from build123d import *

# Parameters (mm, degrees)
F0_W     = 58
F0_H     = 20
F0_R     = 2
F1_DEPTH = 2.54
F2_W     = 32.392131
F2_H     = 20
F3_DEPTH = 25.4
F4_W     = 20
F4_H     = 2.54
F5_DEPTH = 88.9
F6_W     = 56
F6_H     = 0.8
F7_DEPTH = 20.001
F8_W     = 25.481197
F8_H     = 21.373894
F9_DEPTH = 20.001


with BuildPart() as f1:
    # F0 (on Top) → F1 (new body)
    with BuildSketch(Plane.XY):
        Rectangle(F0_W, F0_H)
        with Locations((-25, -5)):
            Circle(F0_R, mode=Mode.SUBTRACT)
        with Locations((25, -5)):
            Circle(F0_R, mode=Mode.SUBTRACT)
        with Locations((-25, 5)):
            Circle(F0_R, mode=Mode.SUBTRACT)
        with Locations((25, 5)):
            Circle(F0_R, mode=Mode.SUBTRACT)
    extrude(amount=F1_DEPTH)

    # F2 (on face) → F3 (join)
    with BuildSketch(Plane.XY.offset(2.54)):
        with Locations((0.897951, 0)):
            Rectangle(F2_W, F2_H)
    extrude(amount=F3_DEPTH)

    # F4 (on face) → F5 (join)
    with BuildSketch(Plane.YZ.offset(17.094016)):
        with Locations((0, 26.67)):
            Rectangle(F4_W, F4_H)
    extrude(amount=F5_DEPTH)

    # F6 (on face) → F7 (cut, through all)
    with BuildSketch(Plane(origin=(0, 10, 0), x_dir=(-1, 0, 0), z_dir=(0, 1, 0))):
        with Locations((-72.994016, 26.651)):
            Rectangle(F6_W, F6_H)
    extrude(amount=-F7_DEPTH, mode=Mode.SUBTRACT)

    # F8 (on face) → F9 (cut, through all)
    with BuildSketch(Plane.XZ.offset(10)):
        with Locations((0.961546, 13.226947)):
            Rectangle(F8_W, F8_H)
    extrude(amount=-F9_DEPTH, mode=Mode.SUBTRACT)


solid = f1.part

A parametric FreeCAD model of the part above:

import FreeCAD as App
import Part
import Sketcher
from FreeCAD import Vector


def add_polygon(sketch, points):
    """Adds a closed chain of lines whose ends are joined by coincident constraints."""
    first, n = sketch.GeometryCount, len(points)
    for a, b in zip(points, points[1:] + points[:1]):
        sketch.addGeometry(Part.LineSegment(App.Vector(*a, 0), App.Vector(*b, 0)), False)
    for i in range(n):
        sketch.addConstraint(Sketcher.Constraint("Coincident", first + i, 2, first + (i + 1) % n, 1))

doc = App.newDocument("Part")
body = doc.addObject("PartDesign::Body", "Body")

# Sketch on XY plane
sketch1 = doc.addObject("Sketcher::SketchObject", "Sketch")
body.addObject(sketch1)
sketch1.AttachmentSupport = (doc.XY_Plane, [""])
sketch1.MapMode = "FlatFace"
add_polygon(sketch1, [(-29, 10), (-29, -10), (29, -10), (29, 10)])  # lines 0-3
sketch1.addGeometry(Part.Circle(Vector(-25, -5, 0), Vector(0, 0, 1), 2), False)  # 4
sketch1.addGeometry(Part.Circle(Vector(25, -5, 0), Vector(0, 0, 1), 2), False)  # 5
sketch1.addGeometry(Part.Circle(Vector(-25, 5, 0), Vector(0, 0, 1), 2), False)  # 6
sketch1.addGeometry(Part.Circle(Vector(25, 5, 0), Vector(0, 0, 1), 2), False)  # 7
sketch1.addConstraint(Sketcher.Constraint("Vertical", 0))
sketch1.addConstraint(Sketcher.Constraint("Horizontal", 1))
sketch1.addConstraint(Sketcher.Constraint("Vertical", 2))
sketch1.addConstraint(Sketcher.Constraint("Horizontal", 3))
sketch1.addConstraint(Sketcher.Constraint("Equal", 4, 5))
sketch1.addConstraint(Sketcher.Constraint("Equal", 5, 6))
sketch1.addConstraint(Sketcher.Constraint("Equal", 6, 7))
sketch1.addConstraint(Sketcher.Constraint("Symmetric", 5, 3, 6, 3, -1, 1))
sketch1.addConstraint(Sketcher.Constraint("Symmetric", 4, 3, 7, 3, -1, 1))
sketch1.addConstraint(Sketcher.Constraint("Symmetric", 0, 2, 2, 2, -1, 1))
sketch1.addConstraint(Sketcher.Constraint("Symmetric", 4, 3, 5, 3, -2))
sketch1.addConstraint(Sketcher.Constraint("Diameter", 4, 4.0))
sketch1.addConstraint(Sketcher.Constraint("DistanceX", 1, 1, 1, 2, 58.0))
sketch1.addConstraint(Sketcher.Constraint("DistanceY", 0, 2, 0, 1, 20.0))
sketch1.addConstraint(Sketcher.Constraint("DistanceX", 4, 3, -1, 1, 25.0))
sketch1.addConstraint(Sketcher.Constraint("DistanceY", 4, 3, -1, 1, 5.0))
pad1 = doc.addObject("PartDesign::Pad", "Pad")
body.addObject(pad1)
pad1.Profile = sketch1
pad1.Length = 2.54

# Sketch on XY plane
sketch2 = doc.addObject("Sketcher::SketchObject", "Sketch001")
body.addObject(sketch2)
sketch2.AttachmentSupport = (doc.XY_Plane, [""])
sketch2.MapMode = "FlatFace"
sketch2.AttachmentOffset = App.Placement(Vector(0, 0, 2.54), App.Rotation())
add_polygon(sketch2, [(-15, 10), (-15, -10), (17, -10), (17, 10)])  # lines 0-3
sketch2.addConstraint(Sketcher.Constraint("Vertical", 0))
sketch2.addConstraint(Sketcher.Constraint("Horizontal", 1))
sketch2.addConstraint(Sketcher.Constraint("Vertical", 2))
sketch2.addConstraint(Sketcher.Constraint("Horizontal", 3))
sketch2.addConstraint(Sketcher.Constraint("DistanceY", 0, 2, 0, 1, 20.0))
sketch2.addConstraint(Sketcher.Constraint("DistanceY", 0, 2, -1, 1, 10.0))
sketch2.addConstraint(Sketcher.Constraint("DistanceX", 1, 1, 1, 2, 32.392131))
sketch2.addConstraint(Sketcher.Constraint("DistanceX", 0, 2, -1, 1, 15.298115))
pad2 = doc.addObject("PartDesign::Pad", "Pad001")
body.addObject(pad2)
pad2.Profile = sketch2
pad2.Length = 25.4

# Sketch on YZ plane
sketch3 = doc.addObject("Sketcher::SketchObject", "Sketch002")
body.addObject(sketch3)
sketch3.AttachmentSupport = (doc.YZ_Plane, [""])
sketch3.MapMode = "FlatFace"
sketch3.AttachmentOffset = App.Placement(Vector(0, 0, 17.094016), App.Rotation())
add_polygon(sketch3, [(-10, 27.9), (-10, 25.4), (10, 25.4), (10, 27.9)])  # lines 0-3
sketch3.addConstraint(Sketcher.Constraint("Vertical", 0))
sketch3.addConstraint(Sketcher.Constraint("Horizontal", 1))
sketch3.addConstraint(Sketcher.Constraint("Vertical", 2))
sketch3.addConstraint(Sketcher.Constraint("Horizontal", 3))
sketch3.addConstraint(Sketcher.Constraint("DistanceX", 1, 1, 1, 2, 20.0))
sketch3.addConstraint(Sketcher.Constraint("DistanceX", 0, 2, -1, 1, 10.0))
sketch3.addConstraint(Sketcher.Constraint("DistanceY", 0, 2, 0, 1, 2.54))
sketch3.addConstraint(Sketcher.Constraint("DistanceY", -1, 1, 0, 2, 25.4))
pad3 = doc.addObject("PartDesign::Pad", "Pad002")
body.addObject(pad3)
pad3.Profile = sketch3
pad3.Length = 88.9

# Sketch on XZ plane
sketch4 = doc.addObject("Sketcher::SketchObject", "Sketch003")
body.addObject(sketch4)
sketch4.AttachmentSupport = (doc.XZ_Plane, [""])
sketch4.MapMode = "FlatFace"
sketch4.AttachmentOffset = App.Placement(Vector(0, 0, -10), App.Rotation())
add_polygon(sketch4, [(101, 27.1), (101, 26.3), (45, 26.3), (45, 27.1)])  # lines 0-3
sketch4.addConstraint(Sketcher.Constraint("Vertical", 0))
sketch4.addConstraint(Sketcher.Constraint("Horizontal", 1))
sketch4.addConstraint(Sketcher.Constraint("Vertical", 2))
sketch4.addConstraint(Sketcher.Constraint("Horizontal", 3))
sketch4.addConstraint(Sketcher.Constraint("DistanceX", 1, 2, 1, 1, 56.0))
sketch4.addConstraint(Sketcher.Constraint("DistanceY", 0, 2, 0, 1, 0.8))
sketch4.addConstraint(Sketcher.Constraint("DistanceY", -1, 1, 0, 2, 26.251))
sketch4.addConstraint(Sketcher.Constraint("DistanceX", -1, 1, 0, 2, 100.994016))
pocket1 = doc.addObject("PartDesign::Pocket", "Pocket")
body.addObject(pocket1)
pocket1.Profile = sketch4
pocket1.Type = "ThroughAll"
pocket1.Reversed = True

# Sketch on XZ plane
sketch5 = doc.addObject("Sketcher::SketchObject", "Sketch004")
body.addObject(sketch5)
sketch5.AttachmentSupport = (doc.XZ_Plane, [""])
sketch5.MapMode = "FlatFace"
sketch5.AttachmentOffset = App.Placement(Vector(0, 0, 10), App.Rotation())
add_polygon(sketch5, [(-12, 24), (-12, 3), (14, 3), (14, 24)])  # lines 0-3
sketch5.addConstraint(Sketcher.Constraint("Vertical", 0))
sketch5.addConstraint(Sketcher.Constraint("Horizontal", 1))
sketch5.addConstraint(Sketcher.Constraint("Vertical", 2))
sketch5.addConstraint(Sketcher.Constraint("Horizontal", 3))
sketch5.addConstraint(Sketcher.Constraint("DistanceY", -1, 1, 0, 2, 2.54))
sketch5.addConstraint(Sketcher.Constraint("DistanceX", 1, 1, 1, 2, 25.481197))
sketch5.addConstraint(Sketcher.Constraint("DistanceY", 0, 2, 0, 1, 21.373894))
sketch5.addConstraint(Sketcher.Constraint("DistanceX", 0, 2, -1, 1, 11.779053))
pocket2 = doc.addObject("PartDesign::Pocket", "Pocket001")
body.addObject(pocket2)
pocket2.Profile = sketch5
pocket2.Type = "ThroughAll"

doc.recompute()
